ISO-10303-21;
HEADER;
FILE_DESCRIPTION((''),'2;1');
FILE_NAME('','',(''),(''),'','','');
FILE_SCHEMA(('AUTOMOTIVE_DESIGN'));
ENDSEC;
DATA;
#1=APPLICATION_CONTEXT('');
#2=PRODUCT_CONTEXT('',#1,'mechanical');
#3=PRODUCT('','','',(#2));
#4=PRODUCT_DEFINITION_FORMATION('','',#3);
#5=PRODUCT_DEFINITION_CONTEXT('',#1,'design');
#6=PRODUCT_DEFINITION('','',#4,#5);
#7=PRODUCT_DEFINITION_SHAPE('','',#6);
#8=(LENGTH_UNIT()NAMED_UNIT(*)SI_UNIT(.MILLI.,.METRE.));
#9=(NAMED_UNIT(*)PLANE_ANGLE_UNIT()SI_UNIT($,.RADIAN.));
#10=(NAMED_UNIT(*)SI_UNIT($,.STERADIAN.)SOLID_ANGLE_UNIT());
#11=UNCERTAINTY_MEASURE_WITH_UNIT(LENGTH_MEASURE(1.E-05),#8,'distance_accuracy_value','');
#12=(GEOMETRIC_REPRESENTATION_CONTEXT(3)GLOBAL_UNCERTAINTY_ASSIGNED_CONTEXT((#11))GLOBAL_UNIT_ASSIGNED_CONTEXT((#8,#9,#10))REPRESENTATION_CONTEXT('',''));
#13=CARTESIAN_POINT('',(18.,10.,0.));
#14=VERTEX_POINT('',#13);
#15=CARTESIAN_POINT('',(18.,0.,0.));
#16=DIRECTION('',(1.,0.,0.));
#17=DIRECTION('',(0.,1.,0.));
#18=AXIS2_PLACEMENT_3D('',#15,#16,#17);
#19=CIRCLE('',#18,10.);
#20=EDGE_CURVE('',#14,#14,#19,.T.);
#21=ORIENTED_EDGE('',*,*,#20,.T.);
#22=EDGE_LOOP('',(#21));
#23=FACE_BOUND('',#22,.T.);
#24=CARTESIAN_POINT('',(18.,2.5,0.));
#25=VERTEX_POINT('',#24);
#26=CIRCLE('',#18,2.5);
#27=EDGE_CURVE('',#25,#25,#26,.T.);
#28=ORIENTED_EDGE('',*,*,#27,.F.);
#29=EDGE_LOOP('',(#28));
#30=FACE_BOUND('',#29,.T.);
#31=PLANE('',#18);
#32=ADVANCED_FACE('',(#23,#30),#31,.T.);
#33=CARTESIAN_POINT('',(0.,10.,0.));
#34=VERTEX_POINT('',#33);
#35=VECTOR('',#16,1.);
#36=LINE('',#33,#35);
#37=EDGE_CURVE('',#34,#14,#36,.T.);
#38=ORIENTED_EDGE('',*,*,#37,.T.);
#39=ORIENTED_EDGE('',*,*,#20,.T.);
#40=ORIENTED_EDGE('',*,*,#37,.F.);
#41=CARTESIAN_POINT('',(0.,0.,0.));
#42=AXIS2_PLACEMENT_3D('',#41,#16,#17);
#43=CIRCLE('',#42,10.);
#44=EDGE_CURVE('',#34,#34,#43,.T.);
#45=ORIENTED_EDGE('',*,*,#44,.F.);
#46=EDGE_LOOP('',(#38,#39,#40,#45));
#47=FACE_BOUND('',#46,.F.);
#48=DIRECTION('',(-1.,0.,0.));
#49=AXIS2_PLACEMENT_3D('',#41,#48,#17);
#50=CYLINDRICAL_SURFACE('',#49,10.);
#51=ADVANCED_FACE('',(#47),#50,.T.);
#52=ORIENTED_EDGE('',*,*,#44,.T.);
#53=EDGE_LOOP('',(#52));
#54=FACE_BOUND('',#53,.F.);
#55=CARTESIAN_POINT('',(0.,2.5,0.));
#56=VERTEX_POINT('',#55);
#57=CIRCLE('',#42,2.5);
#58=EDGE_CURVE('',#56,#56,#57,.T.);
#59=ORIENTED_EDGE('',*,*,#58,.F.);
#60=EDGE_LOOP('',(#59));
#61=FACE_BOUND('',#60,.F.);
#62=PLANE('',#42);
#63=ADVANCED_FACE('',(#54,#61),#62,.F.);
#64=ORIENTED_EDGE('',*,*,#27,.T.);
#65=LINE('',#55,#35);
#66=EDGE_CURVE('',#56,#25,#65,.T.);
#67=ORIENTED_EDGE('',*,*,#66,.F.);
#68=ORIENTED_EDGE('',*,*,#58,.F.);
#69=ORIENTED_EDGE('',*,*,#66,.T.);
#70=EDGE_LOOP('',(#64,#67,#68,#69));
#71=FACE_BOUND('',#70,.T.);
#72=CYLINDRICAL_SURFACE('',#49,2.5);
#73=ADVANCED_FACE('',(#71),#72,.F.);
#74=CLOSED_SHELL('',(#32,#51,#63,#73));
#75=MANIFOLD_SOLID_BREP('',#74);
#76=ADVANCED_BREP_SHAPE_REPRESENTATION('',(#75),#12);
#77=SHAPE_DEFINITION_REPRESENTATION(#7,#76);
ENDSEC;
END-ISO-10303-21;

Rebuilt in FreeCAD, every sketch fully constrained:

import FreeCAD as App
import Part
import Sketcher

V = App.Vector

doc = App.newDocument("Part")
body = doc.addObject("PartDesign::Body", "Body")

sketch1 = body.newObject("Sketcher::SketchObject", "Sketch")
sketch1.AttachmentSupport = (doc.getObject("YZ_Plane"), [""])
sketch1.MapMode = "FlatFace"
sketch1.addGeometry(Part.Circle(V(0, 0, 0), V(0, 0, 1), 10), False)
sketch1.addGeometry(Part.Circle(V(0, 0, 0), V(0, 0, 1), 2.5), False)
sketch1.addConstraint(Sketcher.Constraint("Coincident", 0, 3, -1, 1))
sketch1.addConstraint(Sketcher.Constraint("Coincident", 1, 3, -1, 1))
sketch1.addConstraint(Sketcher.Constraint("Diameter", 0, 20.0))
sketch1.addConstraint(Sketcher.Constraint("Diameter", 1, 5.0))
pad1 = body.newObject("PartDesign::Pad", "Pad")
pad1.Profile = sketch1
pad1.Length = 18

doc.recompute()
